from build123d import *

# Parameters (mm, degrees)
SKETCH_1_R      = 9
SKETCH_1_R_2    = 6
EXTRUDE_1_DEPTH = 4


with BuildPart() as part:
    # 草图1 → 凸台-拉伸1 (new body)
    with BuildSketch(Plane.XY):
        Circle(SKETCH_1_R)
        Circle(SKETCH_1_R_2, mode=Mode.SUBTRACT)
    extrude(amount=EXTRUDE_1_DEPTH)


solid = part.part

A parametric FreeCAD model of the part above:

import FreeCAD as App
import Part
import Sketcher

V = App.Vector
Q = App.Units.Quantity

doc = App.newDocument("Part")
body = doc.addObject("PartDesign::Body", "Body")

# Sketch on XY plane
sketch1 = body.newObject("Sketcher::SketchObject", "Sketch")
sketch1.AttachmentSupport = (doc.getObject("XY_Plane"), [""])
sketch1.MapMode = "FlatFace"
sketch1.addGeometry([
    Part.Circle(V(0, 0, 0), V(0, 0, 1), 9),
    Part.Circle(V(0, 0, 0), V(0, 0, 1), 6),
], False)
sketch1.addConstraint([
    Sketcher.Constraint("Coincident", 0, 3, -1, 1),
    Sketcher.Constraint("Coincident", 1, 3, -1, 1),
    Sketcher.Constraint("Diameter", 0, Q("18 mm")),
    Sketcher.Constraint("Diameter", 1, Q("12 mm")),
])
pad1 = body.newObject("PartDesign::Pad", "Pad")
pad1.Profile = sketch1
pad1.Length = 4

doc.recompute()
